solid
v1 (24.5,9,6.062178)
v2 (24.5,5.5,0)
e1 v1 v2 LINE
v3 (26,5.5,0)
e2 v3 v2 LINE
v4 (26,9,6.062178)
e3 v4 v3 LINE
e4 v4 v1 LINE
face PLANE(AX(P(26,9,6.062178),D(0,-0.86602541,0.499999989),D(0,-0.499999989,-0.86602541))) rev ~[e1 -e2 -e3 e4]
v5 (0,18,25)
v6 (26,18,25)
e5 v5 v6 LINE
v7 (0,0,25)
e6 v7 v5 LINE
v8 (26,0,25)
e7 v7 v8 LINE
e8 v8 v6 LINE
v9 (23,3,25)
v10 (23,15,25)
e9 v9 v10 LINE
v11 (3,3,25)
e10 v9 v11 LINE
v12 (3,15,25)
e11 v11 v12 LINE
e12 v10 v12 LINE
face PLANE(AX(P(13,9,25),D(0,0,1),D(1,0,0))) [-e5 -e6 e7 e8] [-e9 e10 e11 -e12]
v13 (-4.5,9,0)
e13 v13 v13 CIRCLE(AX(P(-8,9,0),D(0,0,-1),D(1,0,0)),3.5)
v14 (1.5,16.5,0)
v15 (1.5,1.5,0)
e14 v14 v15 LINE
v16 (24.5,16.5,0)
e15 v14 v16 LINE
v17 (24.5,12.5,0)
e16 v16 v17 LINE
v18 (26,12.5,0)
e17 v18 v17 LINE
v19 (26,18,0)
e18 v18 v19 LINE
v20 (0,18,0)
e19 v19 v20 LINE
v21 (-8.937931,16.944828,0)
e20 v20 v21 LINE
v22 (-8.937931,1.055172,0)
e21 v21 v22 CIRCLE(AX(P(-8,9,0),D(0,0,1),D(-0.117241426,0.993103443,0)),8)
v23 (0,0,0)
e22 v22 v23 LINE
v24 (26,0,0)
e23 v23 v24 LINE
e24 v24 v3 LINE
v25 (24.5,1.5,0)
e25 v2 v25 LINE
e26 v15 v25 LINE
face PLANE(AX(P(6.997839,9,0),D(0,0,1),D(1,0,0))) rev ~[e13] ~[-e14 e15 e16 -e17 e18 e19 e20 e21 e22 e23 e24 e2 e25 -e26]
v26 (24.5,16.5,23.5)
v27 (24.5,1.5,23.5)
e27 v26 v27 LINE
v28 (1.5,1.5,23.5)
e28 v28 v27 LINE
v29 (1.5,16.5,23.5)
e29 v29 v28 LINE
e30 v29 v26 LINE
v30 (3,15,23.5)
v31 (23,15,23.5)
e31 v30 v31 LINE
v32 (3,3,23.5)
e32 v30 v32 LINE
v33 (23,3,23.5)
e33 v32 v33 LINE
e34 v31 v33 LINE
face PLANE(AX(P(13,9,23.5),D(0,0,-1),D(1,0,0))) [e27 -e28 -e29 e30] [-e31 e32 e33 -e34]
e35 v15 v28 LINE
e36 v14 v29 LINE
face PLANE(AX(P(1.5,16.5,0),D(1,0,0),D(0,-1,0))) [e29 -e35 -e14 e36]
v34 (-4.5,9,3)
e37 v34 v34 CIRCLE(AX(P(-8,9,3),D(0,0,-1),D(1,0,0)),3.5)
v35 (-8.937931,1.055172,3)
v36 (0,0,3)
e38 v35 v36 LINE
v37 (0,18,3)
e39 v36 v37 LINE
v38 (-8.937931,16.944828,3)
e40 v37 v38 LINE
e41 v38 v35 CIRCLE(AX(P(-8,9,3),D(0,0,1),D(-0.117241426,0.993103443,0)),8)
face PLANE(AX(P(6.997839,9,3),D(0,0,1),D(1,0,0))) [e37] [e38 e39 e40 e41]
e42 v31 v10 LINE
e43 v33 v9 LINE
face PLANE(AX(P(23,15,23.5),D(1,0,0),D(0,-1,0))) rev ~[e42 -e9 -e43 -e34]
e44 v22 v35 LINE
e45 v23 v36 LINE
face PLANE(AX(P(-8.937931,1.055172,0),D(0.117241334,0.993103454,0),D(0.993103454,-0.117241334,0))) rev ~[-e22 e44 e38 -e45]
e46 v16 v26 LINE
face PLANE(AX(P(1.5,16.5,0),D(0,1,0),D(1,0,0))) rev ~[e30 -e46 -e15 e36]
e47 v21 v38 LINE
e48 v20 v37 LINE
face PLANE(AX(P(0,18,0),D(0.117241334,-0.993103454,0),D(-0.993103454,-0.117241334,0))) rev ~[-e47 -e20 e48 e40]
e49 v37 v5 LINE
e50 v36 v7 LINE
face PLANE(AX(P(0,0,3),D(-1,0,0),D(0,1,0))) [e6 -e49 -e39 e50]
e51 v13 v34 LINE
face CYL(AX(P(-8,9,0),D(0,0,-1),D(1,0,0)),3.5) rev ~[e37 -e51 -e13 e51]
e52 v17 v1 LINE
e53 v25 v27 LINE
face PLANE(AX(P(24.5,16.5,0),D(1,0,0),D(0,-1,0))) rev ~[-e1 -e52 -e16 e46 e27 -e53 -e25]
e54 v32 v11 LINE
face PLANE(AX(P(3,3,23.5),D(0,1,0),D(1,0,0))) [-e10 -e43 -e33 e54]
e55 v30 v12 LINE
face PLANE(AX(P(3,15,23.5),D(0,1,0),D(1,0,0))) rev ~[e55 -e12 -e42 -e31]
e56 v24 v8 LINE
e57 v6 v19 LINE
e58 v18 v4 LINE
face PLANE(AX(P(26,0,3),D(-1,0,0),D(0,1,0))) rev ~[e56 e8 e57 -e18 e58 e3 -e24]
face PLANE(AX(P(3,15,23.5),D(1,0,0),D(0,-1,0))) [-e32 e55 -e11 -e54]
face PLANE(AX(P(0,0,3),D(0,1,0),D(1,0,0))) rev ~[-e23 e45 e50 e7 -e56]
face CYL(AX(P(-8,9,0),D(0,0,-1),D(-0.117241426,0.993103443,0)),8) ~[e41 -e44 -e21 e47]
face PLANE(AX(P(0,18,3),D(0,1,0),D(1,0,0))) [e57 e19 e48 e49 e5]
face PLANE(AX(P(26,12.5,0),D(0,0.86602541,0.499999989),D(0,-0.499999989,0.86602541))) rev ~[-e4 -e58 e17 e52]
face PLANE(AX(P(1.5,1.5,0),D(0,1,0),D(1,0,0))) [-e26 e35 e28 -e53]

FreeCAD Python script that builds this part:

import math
import FreeCAD as App
import Part
import Sketcher
Q = App.Units.Quantity

doc = App.newDocument("Part")
body = doc.addObject("PartDesign::Body", "Body")

# Sketch on XY plane
sketch1 = doc.addObject("Sketcher::SketchObject", "Sketch")
body.addObject(sketch1)
sketch1.AttachmentSupport = (doc.XY_Plane, [""])
sketch1.MapMode = "FlatFace"
sketch1.addGeometry([
    Part.LineSegment(App.Vector(0, 0, 0), App.Vector(26, 0, 0)),  # 0
    Part.LineSegment(App.Vector(26, 0, 0), App.Vector(26, 18, 0)),  # 1
    Part.LineSegment(App.Vector(26, 18, 0), App.Vector(0, 18, 0)),  # 2
    Part.LineSegment(App.Vector(0, 18, 0), App.Vector(-9, 17, 0)),  # 3
    Part.ArcOfCircle(Part.Circle(App.Vector(-8, 9, 0), App.Vector(0, 0, 1), 8), math.radians(97), math.radians(263)),  # 4
    Part.LineSegment(App.Vector(-9, 1, 0), App.Vector(0, 0, 0)),  # 5
], False)
sketch1.addConstraint([
    Sketcher.Constraint("Coincident", 0, 2, 1, 1),
    Sketcher.Constraint("Coincident", 1, 2, 2, 1),
    Sketcher.Constraint("Coincident", 2, 2, 3, 1),
    Sketcher.Constraint("Tangent", 3, 2, 4, 1),
    Sketcher.Constraint("Tangent", 4, 2, 5, 1),
    Sketcher.Constraint("Coincident", 5, 2, 0, 1),
    Sketcher.Constraint("Horizontal", 0),
    Sketcher.Constraint("Vertical", 1),
    Sketcher.Constraint("Horizontal", 2),
    Sketcher.Constraint("Coincident", 5, 2, -1, 1),
    Sketcher.Constraint("PointOnObject", 2, 2, -2),
    Sketcher.Constraint("Vertical", 3, 2, 4, 2),
    Sketcher.Constraint("Radius", 4, 8.0),
    Sketcher.Constraint("DistanceX", 0, 1, 0, 2, 26.0),
    Sketcher.Constraint("DistanceY", 1, 1, 1, 2, 18.0),
    Sketcher.Constraint("Distance", 3, 9.0),
])
pad1 = doc.addObject("PartDesign::Pad", "Pad")
body.addObject(pad1)
pad1.Profile = sketch1
pad1.Length = 3

# Sketch on XY plane
sketch2 = doc.addObject("Sketcher::SketchObject", "Sketch001")
body.addObject(sketch2)
sketch2.AttachmentSupport = (doc.XY_Plane, [""])
sketch2.MapMode = "FlatFace"
sketch2.AttachmentOffset = App.Placement(App.Vector(0, 0, 3), App.Rotation())
sketch2.addGeometry([
    Part.LineSegment(App.Vector(0, 18, 0), App.Vector(0, 0, 0)),
    Part.LineSegment(App.Vector(0, 0, 0), App.Vector(26, 0, 0)),
    Part.LineSegment(App.Vector(26, 0, 0), App.Vector(26, 18, 0)),
    Part.LineSegment(App.Vector(26, 18, 0), App.Vector(0, 18, 0)),
], False)
sketch2.addConstraint([
    Sketcher.Constraint("Coincident", 0, 2, 1, 1),
    Sketcher.Constraint("Coincident", 1, 2, 2, 1),
    Sketcher.Constraint("Coincident", 2, 2, 3, 1),
    Sketcher.Constraint("Coincident", 3, 2, 0, 1),
    Sketcher.Constraint("Vertical", 0),
    Sketcher.Constraint("Horizontal", 1),
    Sketcher.Constraint("Vertical", 2),
    Sketcher.Constraint("Horizontal", 3),
    Sketcher.Constraint("Coincident", 0, 2, -1, 1),
    Sketcher.Constraint("DistanceX", 1, 1, 1, 2, 26.0),
    Sketcher.Constraint("DistanceY", 0, 2, 0, 1, 18.0),
])
pad2 = doc.addObject("PartDesign::Pad", "Pad001")
body.addObject(pad2)
pad2.Profile = sketch2
pad2.Length = 22

# Sketch on XY plane
sketch3 = doc.addObject("Sketcher::SketchObject", "Sketch002")
body.addObject(sketch3)
sketch3.AttachmentSupport = (doc.XY_Plane, [""])
sketch3.MapMode = "FlatFace"
sketch3.addGeometry([
    Part.LineSegment(App.Vector(2, 2, 0), App.Vector(2, 16, 0)),
    Part.LineSegment(App.Vector(2, 16, 0), App.Vector(24, 16, 0)),
    Part.LineSegment(App.Vector(24, 16, 0), App.Vector(24, 2, 0)),
    Part.LineSegment(App.Vector(24, 2, 0), App.Vector(2, 2, 0)),
], False)
sketch3.addConstraint([
    Sketcher.Constraint("Coincident", 0, 2, 1, 1),
    Sketcher.Constraint("Coincident", 1, 2, 2, 1),
    Sketcher.Constraint("Coincident", 2, 2, 3, 1),
    Sketcher.Constraint("Coincident", 3, 2, 0, 1),
    Sketcher.Constraint("Vertical", 0),
    Sketcher.Constraint("Horizontal", 1),
    Sketcher.Constraint("Vertical", 2),
    Sketcher.Constraint("Horizontal", 3),
    Sketcher.Constraint("DistanceX", 1, 1, 1, 2, 23.0),
    Sketcher.Constraint("DistanceY", 0, 1, 0, 2, 15.0),
    Sketcher.Constraint("DistanceX", -1, 1, 0, 2, 1.5),
    Sketcher.Constraint("DistanceY", -1, 1, 0, 2, 16.5),
])
pocket1 = doc.addObject("PartDesign::Pocket", "Pocket")
body.addObject(pocket1)
pocket1.Profile = sketch3
pocket1.Length = 23.5
pocket1.Reversed = True

# Sketch on XY plane
sketch4 = doc.addObject("Sketcher::SketchObject", "Sketch003")
body.addObject(sketch4)
sketch4.AttachmentSupport = (doc.XY_Plane, [""])
sketch4.MapMode = "FlatFace"
sketch4.AttachmentOffset = App.Placement(App.Vector(0, 0, 23.5), App.Rotation())
sketch4.addGeometry([
    Part.LineSegment(App.Vector(3, 3, 0), App.Vector(3, 15, 0)),
    Part.LineSegment(App.Vector(3, 15, 0), App.Vector(23, 15, 0)),
    Part.LineSegment(App.Vector(23, 15, 0), App.Vector(23, 3, 0)),
    Part.LineSegment(App.Vector(23, 3, 0), App.Vector(3, 3, 0)),
], False)
sketch4.addConstraint([
    Sketcher.Constraint("Coincident", 0, 2, 1, 1),
    Sketcher.Constraint("Coincident", 1, 2, 2, 1),
    Sketcher.Constraint("Coincident", 2, 2, 3, 1),
    Sketcher.Constraint("Coincident", 3, 2, 0, 1),
    Sketcher.Constraint("Vertical", 0),
    Sketcher.Constraint("Horizontal", 1),
    Sketcher.Constraint("Vertical", 2),
    Sketcher.Constraint("Horizontal", 3),
    Sketcher.Constraint("DistanceX", 1, 1, 1, 2, 20.0),
    Sketcher.Constraint("DistanceY", 0, 1, 0, 2, 12.0),
    Sketcher.Constraint("DistanceX", -1, 1, 0, 2, 3.0),
    Sketcher.Constraint("DistanceY", -1, 1, 0, 2, 15.0),
])
pocket2 = doc.addObject("PartDesign::Pocket", "Pocket001")
body.addObject(pocket2)
pocket2.Profile = sketch4
pocket2.Type = "ThroughAll"
pocket2.Reversed = True

# Sketch on XY plane
sketch5 = doc.addObject("Sketcher::SketchObject", "Sketch004")
body.addObject(sketch5)
sketch5.AttachmentSupport = (doc.XY_Plane, [""])
sketch5.MapMode = "FlatFace"
sketch5.addGeometry(Part.Circle(App.Vector(-8, 9, 0), App.Vector(0, 0, 1), 3.5), False)
sketch5.addConstraint([
    Sketcher.Constraint("Diameter", 0, 7.0),
    Sketcher.Constraint("DistanceX", 0, 3, -1, 1, 8.0),
    Sketcher.Constraint("DistanceY", -1, 1, 0, 3, 9.0),
])
pocket3 = doc.addObject("PartDesign::Pocket", "Pocket002")
body.addObject(pocket3)
pocket3.Profile = sketch5
pocket3.Type = "ThroughAll"
pocket3.Reversed = True

# Sketch on YZ plane
sketch6 = doc.addObject("Sketcher::SketchObject", "Sketch005")
body.addObject(sketch6)
sketch6.AttachmentSupport = (doc.YZ_Plane, [""])
sketch6.MapMode = "FlatFace"
sketch6.AttachmentOffset = App.Placement(App.Vector(0, 0, 26), App.Rotation())
sketch6.addGeometry([
    Part.LineSegment(App.Vector(12, 0, 0), App.Vector(9, 6, 0)),
    Part.LineSegment(App.Vector(9, 6, 0), App.Vector(6, 0, 0)),
    Part.LineSegment(App.Vector(6, 0, 0), App.Vector(12, 0, 0)),
], False)
sketch6.addConstraint([
    Sketcher.Constraint("Coincident", 0, 2, 1, 1),
    Sketcher.Constraint("Coincident", 1, 2, 2, 1),
    Sketcher.Constraint("Coincident", 2, 2, 0, 1),
    Sketcher.Constraint("Horizontal", 2),
    Sketcher.Constraint("PointOnObject", 1, 2, -1),
    Sketcher.Constraint("Equal", 0, 1),
    Sketcher.Constraint("DistanceX", 2, 1, 2, 2, 7.0),
    Sketcher.Constraint("Angle", 0, Q("119.999999 deg")),
    Sketcher.Constraint("DistanceX", -1, 1, 0, 2, 9.0),
])
pocket4 = doc.addObject("PartDesign::Pocket", "Pocket003")
body.addObject(pocket4)
pocket4.Profile = sketch6
pocket4.Length = 1.5

doc.recompute()
